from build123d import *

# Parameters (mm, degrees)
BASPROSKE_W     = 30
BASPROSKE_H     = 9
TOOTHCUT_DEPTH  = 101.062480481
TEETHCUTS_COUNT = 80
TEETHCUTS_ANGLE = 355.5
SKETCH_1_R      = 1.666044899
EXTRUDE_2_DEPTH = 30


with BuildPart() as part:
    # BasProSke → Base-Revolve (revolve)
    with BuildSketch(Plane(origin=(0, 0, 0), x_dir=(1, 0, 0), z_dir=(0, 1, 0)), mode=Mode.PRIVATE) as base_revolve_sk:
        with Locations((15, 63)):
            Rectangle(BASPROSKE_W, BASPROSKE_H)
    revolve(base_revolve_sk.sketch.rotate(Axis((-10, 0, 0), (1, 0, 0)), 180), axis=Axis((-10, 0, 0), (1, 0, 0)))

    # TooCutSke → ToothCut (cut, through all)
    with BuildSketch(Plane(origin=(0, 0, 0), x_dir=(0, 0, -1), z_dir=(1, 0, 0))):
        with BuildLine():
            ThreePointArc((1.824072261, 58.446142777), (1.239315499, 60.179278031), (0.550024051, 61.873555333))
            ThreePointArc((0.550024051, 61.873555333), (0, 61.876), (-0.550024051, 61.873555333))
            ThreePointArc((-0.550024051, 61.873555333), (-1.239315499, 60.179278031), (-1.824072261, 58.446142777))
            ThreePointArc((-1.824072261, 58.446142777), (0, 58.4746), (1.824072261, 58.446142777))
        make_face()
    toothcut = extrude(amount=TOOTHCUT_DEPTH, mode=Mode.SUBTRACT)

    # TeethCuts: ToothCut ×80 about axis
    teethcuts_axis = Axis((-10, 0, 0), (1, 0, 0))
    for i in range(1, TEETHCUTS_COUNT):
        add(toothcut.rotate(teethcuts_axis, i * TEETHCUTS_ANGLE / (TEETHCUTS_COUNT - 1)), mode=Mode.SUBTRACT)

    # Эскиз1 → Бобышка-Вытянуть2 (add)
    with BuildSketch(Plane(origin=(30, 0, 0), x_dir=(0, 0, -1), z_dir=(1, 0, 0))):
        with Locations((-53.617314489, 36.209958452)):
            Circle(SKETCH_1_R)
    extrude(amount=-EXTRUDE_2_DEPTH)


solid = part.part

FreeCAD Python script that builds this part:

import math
import FreeCAD as App
import Part
import Sketcher

V = App.Vector

doc = App.newDocument("Part")
params = doc.addObject("Spreadsheet::Sheet", "Params")
for row, (alias, value) in enumerate([
    ("sketch1_width", "30 mm"),
    ("sketch1_height", "9 mm"),
    ("revolution_angle", "360 deg"),
    ("sketch2_radius", "30 mm"),
    ("pad1_length", "30 mm"),
], start=1):
    params.set(f"A{row}", alias)
    params.set(f"B{row}", "=" + value)
    params.setAlias(f"B{row}", alias)

body = doc.addObject("PartDesign::Body", "Body")

sketch1 = body.newObject("Sketcher::SketchObject", "Sketch")
sketch1.AttachmentSupport = (doc.getObject("XZ_Plane"), [""])
sketch1.MapMode = "FlatFace"
sketch1.addGeometry([
    Part.LineSegment(V(0, -68, 0), V(0, -58, 0)),
    Part.LineSegment(V(0, -58, 0), V(30, -58, 0)),
    Part.LineSegment(V(30, -58, 0), V(30, -68, 0)),
    Part.LineSegment(V(30, -68, 0), V(0, -68, 0)),
], False)
sketch1.addConstraint([
    Sketcher.Constraint("Coincident", 0, 2, 1, 1),
    Sketcher.Constraint("Coincident", 1, 2, 2, 1),
    Sketcher.Constraint("Coincident", 2, 2, 3, 1),
    Sketcher.Constraint("Coincident", 3, 2, 0, 1),
    Sketcher.Constraint("Vertical", 0),
    Sketcher.Constraint("Horizontal", 1),
    Sketcher.Constraint("Vertical", 2),
    Sketcher.Constraint("Horizontal", 3),
    Sketcher.Constraint("PointOnObject", 0, 2, -2),
    Sketcher.Constraint("DistanceX", 1, 1, 1, 2, 30.0),
    Sketcher.Constraint("DistanceY", 0, 1, 0, 2, 9.0),
    Sketcher.Constraint("DistanceY", 0, 2, -1, 1, 58.5),
])
sketch1.setExpression("Constraints[9]", "Params.sketch1_width")
sketch1.setExpression("Constraints[10]", "Params.sketch1_height")
revolution = body.newObject("PartDesign::Revolution", "Revolution")
revolution.Profile = sketch1
revolution.ReferenceAxis = (sketch1, ["H_Axis"])
revolution.setExpression("Angle", "Params.revolution_angle")

sketch2 = body.newObject("Sketcher::SketchObject", "Sketch001")
sketch2.AttachmentSupport = (doc.getObject("YZ_Plane"), [""])
sketch2.MapMode = "FlatFace"
sketch2.addGeometry([
    Part.ArcOfCircle(Part.Circle(V(49.7, 26.9, 0), V(0, 0, 1), 30), math.radians(-73.1), math.radians(-66.11)),
    Part.ArcOfCircle(Part.Circle(V(0, 0, 0), V(0, 0, 1), 61.9), math.radians(-0.51), math.radians(0.51)),
    Part.ArcOfCircle(Part.Circle(V(49.7, -26.9, 0), V(0, 0, 1), 30), math.radians(66.11), math.radians(73.1)),
    Part.ArcOfCircle(Part.Circle(V(0, 0, 0), V(0, 0, 1), 58.5), math.radians(-1.79), math.radians(1.79)),
], False)
sketch2.addConstraint([
    Sketcher.Constraint("Coincident", 0, 2, 1, 1),
    Sketcher.Constraint("Coincident", 1, 2, 2, 1),
    Sketcher.Constraint("Coincident", 2, 2, 3, 2),
    Sketcher.Constraint("Coincident", 3, 1, 0, 1),
    Sketcher.Constraint("Coincident", 1, 3, -1, 1),
    Sketcher.Constraint("Coincident", 3, 3, -1, 1),
    Sketcher.Constraint("Equal", 0, 2),
    Sketcher.Constraint("Symmetric", 0, 3, 2, 3, -1),
    Sketcher.Constraint("Radius", 0, 30.0),
    Sketcher.Constraint("Radius", 1, 61.876001),
    Sketcher.Constraint("Radius", 3, 58.474599),
    Sketcher.Constraint("DistanceY", -1, 1, 0, 3, 26.880739),
    Sketcher.Constraint("DistanceX", 2, 3, 0, 2, 12.147149),
])
sketch2.setExpression("Constraints[8]", "Params.sketch2_radius")
pocket1 = body.newObject("PartDesign::Pocket", "Pocket")
pocket1.Profile = sketch2
pocket1.Type = "ThroughAll"
pocket1.Reversed = True
doc.recompute()

polarpattern = body.newObject("PartDesign::PolarPattern", "PolarPattern")
polarpattern.Originals = [pocket1]
polarpattern.Axis = (doc.getObject("X_Axis"), [""])
polarpattern.Angle = 360
polarpattern.Occurrences = 80
body.Tip = polarpattern

sketch3 = body.newObject("Sketcher::SketchObject", "Sketch002")
sketch3.AttachmentSupport = (doc.getObject("YZ_Plane"), [""])
sketch3.MapMode = "FlatFace"
sketch3.AttachmentOffset = App.Placement(V(0, 0, 30), App.Rotation())
sketch3.addGeometry(Part.Circle(V(36.2, 53.6, 0), V(0, 0, 1), 1.7), False)
sketch3.addConstraint([
    Sketcher.Constraint("Diameter", 0, 3.33209),
    Sketcher.Constraint("DistanceX", -1, 1, 0, 3, 36.209958),
    Sketcher.Constraint("DistanceY", -1, 1, 0, 3, 53.617314),
])
pad1 = body.newObject("PartDesign::Pad", "Pad")
pad1.Profile = sketch3
pad1.setExpression("Length", "Params.pad1_length")
pad1.Reversed = True

doc.recompute()
